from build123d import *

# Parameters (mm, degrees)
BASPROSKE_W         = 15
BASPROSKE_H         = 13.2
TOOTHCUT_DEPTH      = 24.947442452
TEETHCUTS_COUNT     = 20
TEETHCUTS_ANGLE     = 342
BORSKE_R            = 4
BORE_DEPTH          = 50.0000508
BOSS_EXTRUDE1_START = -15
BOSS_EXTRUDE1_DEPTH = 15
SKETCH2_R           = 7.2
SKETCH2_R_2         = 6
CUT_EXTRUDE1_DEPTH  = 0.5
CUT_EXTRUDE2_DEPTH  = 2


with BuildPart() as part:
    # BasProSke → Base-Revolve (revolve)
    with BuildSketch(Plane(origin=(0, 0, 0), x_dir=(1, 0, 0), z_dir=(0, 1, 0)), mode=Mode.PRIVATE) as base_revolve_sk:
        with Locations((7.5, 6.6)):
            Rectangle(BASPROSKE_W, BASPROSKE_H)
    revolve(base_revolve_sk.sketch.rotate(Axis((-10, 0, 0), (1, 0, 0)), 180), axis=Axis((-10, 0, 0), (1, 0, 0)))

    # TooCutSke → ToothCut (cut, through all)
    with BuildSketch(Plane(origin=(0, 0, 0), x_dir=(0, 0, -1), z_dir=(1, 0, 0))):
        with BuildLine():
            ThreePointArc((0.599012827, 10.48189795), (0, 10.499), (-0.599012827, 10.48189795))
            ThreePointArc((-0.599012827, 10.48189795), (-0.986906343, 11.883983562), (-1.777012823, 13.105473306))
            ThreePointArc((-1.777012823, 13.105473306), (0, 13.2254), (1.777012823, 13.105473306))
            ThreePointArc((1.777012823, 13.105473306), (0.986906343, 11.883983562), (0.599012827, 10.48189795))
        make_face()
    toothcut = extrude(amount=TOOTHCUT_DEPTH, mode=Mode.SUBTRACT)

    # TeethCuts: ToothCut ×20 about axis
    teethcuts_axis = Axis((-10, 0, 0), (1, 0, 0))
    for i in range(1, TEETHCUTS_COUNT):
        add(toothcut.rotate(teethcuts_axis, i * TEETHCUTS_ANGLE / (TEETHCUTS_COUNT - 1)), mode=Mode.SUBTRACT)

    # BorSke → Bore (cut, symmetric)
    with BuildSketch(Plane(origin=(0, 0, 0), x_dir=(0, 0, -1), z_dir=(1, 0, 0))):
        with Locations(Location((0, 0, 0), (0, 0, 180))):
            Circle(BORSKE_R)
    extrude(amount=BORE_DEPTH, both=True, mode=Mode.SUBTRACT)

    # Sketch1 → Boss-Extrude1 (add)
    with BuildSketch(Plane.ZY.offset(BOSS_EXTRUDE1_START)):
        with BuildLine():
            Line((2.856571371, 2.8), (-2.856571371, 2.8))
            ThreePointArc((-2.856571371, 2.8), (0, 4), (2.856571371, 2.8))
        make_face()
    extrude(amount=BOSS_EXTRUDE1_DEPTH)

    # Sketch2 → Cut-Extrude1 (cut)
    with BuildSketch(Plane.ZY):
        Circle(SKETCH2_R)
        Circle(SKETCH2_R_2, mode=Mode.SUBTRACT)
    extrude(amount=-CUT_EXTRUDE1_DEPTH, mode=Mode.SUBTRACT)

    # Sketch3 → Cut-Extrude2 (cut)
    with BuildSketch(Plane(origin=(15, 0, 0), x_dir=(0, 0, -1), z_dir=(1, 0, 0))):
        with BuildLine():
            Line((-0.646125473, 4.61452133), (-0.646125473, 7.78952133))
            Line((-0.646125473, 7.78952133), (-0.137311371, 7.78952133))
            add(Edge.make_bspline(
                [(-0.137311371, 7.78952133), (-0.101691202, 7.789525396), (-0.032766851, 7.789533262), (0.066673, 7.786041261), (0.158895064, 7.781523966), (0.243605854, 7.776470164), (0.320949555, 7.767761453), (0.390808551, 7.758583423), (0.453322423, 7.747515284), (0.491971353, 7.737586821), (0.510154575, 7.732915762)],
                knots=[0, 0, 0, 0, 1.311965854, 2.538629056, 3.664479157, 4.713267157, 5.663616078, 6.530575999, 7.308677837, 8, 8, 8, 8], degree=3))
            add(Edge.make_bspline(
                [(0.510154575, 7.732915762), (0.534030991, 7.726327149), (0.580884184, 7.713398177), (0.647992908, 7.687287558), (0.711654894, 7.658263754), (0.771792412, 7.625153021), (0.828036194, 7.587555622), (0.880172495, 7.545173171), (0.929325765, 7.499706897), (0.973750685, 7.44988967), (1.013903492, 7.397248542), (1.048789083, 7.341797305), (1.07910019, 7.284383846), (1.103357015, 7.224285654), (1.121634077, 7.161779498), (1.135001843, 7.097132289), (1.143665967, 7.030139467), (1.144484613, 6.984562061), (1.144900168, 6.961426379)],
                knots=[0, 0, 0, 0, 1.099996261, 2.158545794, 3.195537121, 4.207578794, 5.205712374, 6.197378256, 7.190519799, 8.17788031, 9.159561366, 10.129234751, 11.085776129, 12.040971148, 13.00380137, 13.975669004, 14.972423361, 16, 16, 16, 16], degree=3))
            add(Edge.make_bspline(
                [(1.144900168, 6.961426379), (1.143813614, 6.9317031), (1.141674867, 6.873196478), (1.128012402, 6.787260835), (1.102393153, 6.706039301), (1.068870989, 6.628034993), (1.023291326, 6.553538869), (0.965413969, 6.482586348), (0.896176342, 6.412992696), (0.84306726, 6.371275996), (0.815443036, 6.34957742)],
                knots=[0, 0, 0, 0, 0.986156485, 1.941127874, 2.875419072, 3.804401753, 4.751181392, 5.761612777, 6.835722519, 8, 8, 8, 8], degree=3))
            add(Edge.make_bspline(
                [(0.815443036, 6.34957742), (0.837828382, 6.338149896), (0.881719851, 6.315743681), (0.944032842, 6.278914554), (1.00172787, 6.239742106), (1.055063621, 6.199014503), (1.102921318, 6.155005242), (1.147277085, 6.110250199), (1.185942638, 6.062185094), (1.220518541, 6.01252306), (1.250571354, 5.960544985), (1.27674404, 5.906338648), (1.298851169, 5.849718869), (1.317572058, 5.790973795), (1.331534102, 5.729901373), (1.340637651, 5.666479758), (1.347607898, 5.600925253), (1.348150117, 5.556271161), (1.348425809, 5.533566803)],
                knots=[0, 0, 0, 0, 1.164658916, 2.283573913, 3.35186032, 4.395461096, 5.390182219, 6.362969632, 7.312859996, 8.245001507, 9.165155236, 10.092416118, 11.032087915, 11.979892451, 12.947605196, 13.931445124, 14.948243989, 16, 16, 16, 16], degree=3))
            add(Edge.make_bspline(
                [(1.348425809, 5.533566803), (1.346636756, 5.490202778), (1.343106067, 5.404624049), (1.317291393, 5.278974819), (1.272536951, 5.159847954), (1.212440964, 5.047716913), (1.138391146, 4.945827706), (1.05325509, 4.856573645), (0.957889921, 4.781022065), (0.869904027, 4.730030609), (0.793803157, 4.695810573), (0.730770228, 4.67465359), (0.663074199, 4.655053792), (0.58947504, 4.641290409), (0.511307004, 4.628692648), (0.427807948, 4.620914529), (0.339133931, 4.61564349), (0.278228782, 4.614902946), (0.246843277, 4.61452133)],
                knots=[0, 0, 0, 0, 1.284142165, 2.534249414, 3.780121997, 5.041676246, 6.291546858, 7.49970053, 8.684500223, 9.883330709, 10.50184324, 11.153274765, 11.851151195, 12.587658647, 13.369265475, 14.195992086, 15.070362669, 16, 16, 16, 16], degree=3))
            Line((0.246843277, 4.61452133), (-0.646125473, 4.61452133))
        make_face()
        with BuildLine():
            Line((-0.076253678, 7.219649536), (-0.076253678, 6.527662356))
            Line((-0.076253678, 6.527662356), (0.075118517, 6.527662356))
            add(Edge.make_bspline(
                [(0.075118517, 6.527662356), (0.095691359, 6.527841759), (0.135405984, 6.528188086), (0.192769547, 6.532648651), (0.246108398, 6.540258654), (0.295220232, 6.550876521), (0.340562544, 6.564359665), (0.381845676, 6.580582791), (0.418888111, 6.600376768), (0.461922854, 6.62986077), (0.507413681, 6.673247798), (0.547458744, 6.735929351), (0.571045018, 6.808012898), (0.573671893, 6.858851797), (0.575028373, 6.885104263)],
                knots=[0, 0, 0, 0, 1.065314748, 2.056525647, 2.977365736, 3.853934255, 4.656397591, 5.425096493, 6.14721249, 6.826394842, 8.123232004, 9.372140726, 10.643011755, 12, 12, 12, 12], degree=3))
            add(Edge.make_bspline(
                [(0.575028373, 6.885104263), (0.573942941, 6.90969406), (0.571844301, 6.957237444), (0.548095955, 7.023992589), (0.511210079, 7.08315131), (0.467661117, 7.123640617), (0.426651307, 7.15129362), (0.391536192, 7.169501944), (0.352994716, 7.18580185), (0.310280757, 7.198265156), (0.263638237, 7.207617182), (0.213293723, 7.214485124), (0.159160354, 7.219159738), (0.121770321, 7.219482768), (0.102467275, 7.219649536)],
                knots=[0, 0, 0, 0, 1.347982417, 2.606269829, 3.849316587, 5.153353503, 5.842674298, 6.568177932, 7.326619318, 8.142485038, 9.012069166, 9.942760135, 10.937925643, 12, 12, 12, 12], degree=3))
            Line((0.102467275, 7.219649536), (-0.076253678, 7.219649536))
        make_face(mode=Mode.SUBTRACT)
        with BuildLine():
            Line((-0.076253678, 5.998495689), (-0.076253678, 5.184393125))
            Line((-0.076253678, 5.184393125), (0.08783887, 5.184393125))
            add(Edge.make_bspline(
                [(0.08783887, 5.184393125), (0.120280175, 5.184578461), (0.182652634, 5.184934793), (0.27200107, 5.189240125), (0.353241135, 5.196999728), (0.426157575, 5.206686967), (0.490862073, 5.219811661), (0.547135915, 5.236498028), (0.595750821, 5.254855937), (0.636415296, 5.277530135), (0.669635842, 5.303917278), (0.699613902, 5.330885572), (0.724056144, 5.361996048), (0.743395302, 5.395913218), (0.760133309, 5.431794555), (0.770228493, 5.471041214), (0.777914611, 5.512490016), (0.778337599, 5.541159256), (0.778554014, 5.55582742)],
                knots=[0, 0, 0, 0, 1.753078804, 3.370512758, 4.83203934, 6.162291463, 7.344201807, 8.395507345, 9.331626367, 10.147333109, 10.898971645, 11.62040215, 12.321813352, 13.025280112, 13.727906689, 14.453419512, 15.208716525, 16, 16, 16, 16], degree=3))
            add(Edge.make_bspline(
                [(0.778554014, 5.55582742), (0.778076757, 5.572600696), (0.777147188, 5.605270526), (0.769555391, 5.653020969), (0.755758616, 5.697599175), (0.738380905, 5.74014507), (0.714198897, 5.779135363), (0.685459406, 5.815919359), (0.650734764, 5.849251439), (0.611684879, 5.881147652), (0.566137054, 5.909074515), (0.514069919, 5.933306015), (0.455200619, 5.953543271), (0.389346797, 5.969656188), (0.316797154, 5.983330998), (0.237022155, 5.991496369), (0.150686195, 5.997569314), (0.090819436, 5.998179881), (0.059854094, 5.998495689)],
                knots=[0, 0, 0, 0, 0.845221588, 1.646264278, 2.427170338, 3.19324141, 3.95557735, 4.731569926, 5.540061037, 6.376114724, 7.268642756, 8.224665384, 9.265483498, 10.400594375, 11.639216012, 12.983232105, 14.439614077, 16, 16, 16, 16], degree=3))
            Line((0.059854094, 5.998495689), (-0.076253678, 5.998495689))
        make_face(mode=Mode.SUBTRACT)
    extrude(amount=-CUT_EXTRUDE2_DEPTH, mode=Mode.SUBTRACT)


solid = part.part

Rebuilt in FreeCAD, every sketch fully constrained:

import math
import FreeCAD as App
import Part
import Sketcher
from FreeCAD import Vector

doc = App.newDocument("Part")
params = doc.addObject("Spreadsheet::Sheet", "Params")
for row, (alias, value) in enumerate([
    ("sketch1_width", "15 mm"),
    ("sketch1_height", "13.2 mm"),
    ("revolution_angle", "360 deg"),
    ("sketch2_radius", "4.8 mm"),
    ("sketch3_diameter", "8 mm"),
    ("pocket2_length", "100.000102 mm"),
    ("sketch4_radius", "4 mm"),
    ("pad1_length", "15 mm"),
    ("sketch5_diameter", "12 mm"),
    ("sketch5_diameter2", "14.4 mm"),
    ("pocket3_length", "0.5 mm"),
    ("pocket4_length", "2 mm"),
], start=1):
    params.set(f"A{row}", alias)
    params.set(f"B{row}", "=" + value)
    params.setAlias(f"B{row}", alias)

body = doc.addObject("PartDesign::Body", "Body")

sketch1 = doc.addObject("Sketcher::SketchObject", "Sketch")
body.addObject(sketch1)
sketch1.AttachmentSupport = (doc.XZ_Plane, [""])
sketch1.MapMode = "FlatFace"
sketch1.addGeometry([
    Part.LineSegment(Vector(0, -13, 0), Vector(0, 0, 0)),
    Part.LineSegment(Vector(0, 0, 0), Vector(15, 0, 0)),
    Part.LineSegment(Vector(15, 0, 0), Vector(15, -13, 0)),
    Part.LineSegment(Vector(15, -13, 0), Vector(0, -13, 0)),
], False)
sketch1.addConstraint([
    Sketcher.Constraint("Coincident", 0, 2, 1, 1),
    Sketcher.Constraint("Coincident", 1, 2, 2, 1),
    Sketcher.Constraint("Coincident", 2, 2, 3, 1),
    Sketcher.Constraint("Coincident", 3, 2, 0, 1),
    Sketcher.Constraint("Vertical", 0),
    Sketcher.Constraint("Horizontal", 1),
    Sketcher.Constraint("Vertical", 2),
    Sketcher.Constraint("Horizontal", 3),
    Sketcher.Constraint("Coincident", 0, 2, -1, 1),
    Sketcher.Constraint("DistanceX", 1, 1, 1, 2, 15.0),
    Sketcher.Constraint("DistanceY", 0, 1, 0, 2, 13.2),
])
sketch1.setExpression("Constraints[9]", "Params.sketch1_width")
sketch1.setExpression("Constraints[10]", "Params.sketch1_height")
revolution = doc.addObject("PartDesign::Revolution", "Revolution")
body.addObject(revolution)
revolution.Profile = sketch1
revolution.ReferenceAxis = (sketch1, ["H_Axis"])
revolution.setExpression("Angle", "Params.revolution_angle")

sketch2 = doc.addObject("Sketcher::SketchObject", "Sketch001")
body.addObject(sketch2)
sketch2.AttachmentSupport = (doc.YZ_Plane, [""])
sketch2.MapMode = "FlatFace"
sketch2.addGeometry([
    Part.ArcOfCircle(Part.Circle(Vector(0, 0, 0), Vector(0, 0, 1), 10.5), math.radians(-3.27), math.radians(3.27)),
    Part.ArcOfCircle(Part.Circle(Vector(9.9, -5.4, 0), Vector(0, 0, 1), 4.8), math.radians(48), math.radians(83)),
    Part.ArcOfCircle(Part.Circle(Vector(0, 0, 0), Vector(0, 0, 1), 13.2), math.radians(-7.72), math.radians(7.72)),
    Part.ArcOfCircle(Part.Circle(Vector(9.9, 5.4, 0), Vector(0, 0, 1), 4.8), math.radians(-83), math.radians(-48)),
], False)
sketch2.addConstraint([
    Sketcher.Constraint("Coincident", 0, 1, 1, 2),
    Sketcher.Constraint("Coincident", 1, 1, 2, 1),
    Sketcher.Constraint("Coincident", 2, 2, 3, 2),
    Sketcher.Constraint("Coincident", 3, 1, 0, 2),
    Sketcher.Constraint("Coincident", 0, 3, -1, 1),
    Sketcher.Constraint("Coincident", 2, 3, -1, 1),
    Sketcher.Constraint("Equal", 1, 3),
    Sketcher.Constraint("Symmetric", 1, 3, 3, 3, -1),
    Sketcher.Constraint("Radius", 1, 4.8),
    Sketcher.Constraint("Radius", 0, 10.499),
    Sketcher.Constraint("Radius", 2, 13.2254),
    Sketcher.Constraint("DistanceY", 1, 1, 0, 1, 1.178),
    Sketcher.Constraint("DistanceY", 0, 1, 3, 3, 5.96477),
])
sketch2.setExpression("Constraints[8]", "Params.sketch2_radius")
pocket1 = doc.addObject("PartDesign::Pocket", "Pocket")
body.addObject(pocket1)
pocket1.Profile = sketch2
pocket1.Type = "ThroughAll"
pocket1.Reversed = True
doc.recompute()

polarpattern = doc.addObject("PartDesign::PolarPattern", "PolarPattern")
body.addObject(polarpattern)
polarpattern.Originals = [pocket1]
polarpattern.Axis = (doc.X_Axis, [""])
polarpattern.Angle = 360
polarpattern.Occurrences = 20
body.Tip = polarpattern

sketch3 = doc.addObject("Sketcher::SketchObject", "Sketch002")
body.addObject(sketch3)
sketch3.AttachmentSupport = (doc.YZ_Plane, [""])
sketch3.MapMode = "FlatFace"
sketch3.addGeometry(Part.Circle(Vector(0, 0, 0), Vector(0, 0, 1), 4), False)
sketch3.addConstraint([
    Sketcher.Constraint("Coincident", 0, 3, -1, 1),
    Sketcher.Constraint("Diameter", 0, 8.0),
])
sketch3.setExpression("Constraints[1]", "Params.sketch3_diameter")
pocket2 = doc.addObject("PartDesign::Pocket", "Pocket001")
body.addObject(pocket2)
pocket2.Profile = sketch3
pocket2.setExpression("Length", "Params.pocket2_length")
pocket2.Midplane = True

sketch4 = doc.addObject("Sketcher::SketchObject", "Sketch003")
body.addObject(sketch4)
sketch4.AttachmentSupport = (doc.YZ_Plane, [""])
sketch4.MapMode = "FlatFace"
sketch4.AttachmentOffset = App.Placement(Vector(0, 0, 15), App.Rotation())
sketch4.addGeometry([
    Part.LineSegment(Vector(2.8, -2.9, 0), Vector(2.8, 2.9, 0)),
    Part.ArcOfCircle(Part.Circle(Vector(0, 0, 0), Vector(0, 0, 1), 4), math.radians(-46), math.radians(46)),
], False)
sketch4.addConstraint([
    Sketcher.Constraint("Coincident", 0, 1, 1, 1),
    Sketcher.Constraint("Coincident", 1, 2, 0, 2),
    Sketcher.Constraint("Vertical", 0),
    Sketcher.Constraint("Coincident", 1, 3, -1, 1),
    Sketcher.Constraint("Radius", 1, 4.0),
    Sketcher.Constraint("DistanceX", -1, 1, 0, 1, 2.8),
])
sketch4.setExpression("Constraints[4]", "Params.sketch4_radius")
pad1 = doc.addObject("PartDesign::Pad", "Pad")
body.addObject(pad1)
pad1.Profile = sketch4
pad1.setExpression("Length", "Params.pad1_length")
pad1.Reversed = True

sketch5 = doc.addObject("Sketcher::SketchObject", "Sketch004")
body.addObject(sketch5)
sketch5.AttachmentSupport = (doc.YZ_Plane, [""])
sketch5.MapMode = "FlatFace"
sketch5.addGeometry([
    Part.Circle(Vector(0, 0, 0), Vector(0, 0, 1), 7),
    Part.Circle(Vector(0, 0, 0), Vector(0, 0, 1), 6),
], False)
sketch5.addConstraint([
    Sketcher.Constraint("Coincident", 0, 3, -1, 1),
    Sketcher.Constraint("Coincident", 1, 3, -1, 1),
    Sketcher.Constraint("Diameter", 1, 12.0),
    Sketcher.Constraint("Diameter", 0, 14.4),
])
sketch5.setExpression("Constraints[2]", "Params.sketch5_diameter")
sketch5.setExpression("Constraints[3]", "Params.sketch5_diameter2")
pocket3 = doc.addObject("PartDesign::Pocket", "Pocket002")
body.addObject(pocket3)
pocket3.Profile = sketch5
pocket3.setExpression("Length", "Params.pocket3_length")
pocket3.Reversed = True

sketch6 = doc.addObject("Sketcher::SketchObject", "Sketch005")
body.addObject(sketch6)
sketch6.AttachmentSupport = (doc.YZ_Plane, [""])
sketch6.MapMode = "FlatFace"
sketch6.AttachmentOffset = App.Placement(Vector(0, 0, 15), App.Rotation())
sketch6.addGeometry([
    Part.LineSegment(Vector(7.789521, 0.646125, 0), Vector(4.614521, 0.646125, 0)),
    Part.LineSegment(Vector(4.614521, 0.646125, 0), Vector(4.614521, -0.246843, 0)),
    Part.BSplineCurve([Vector(5.533567, -1.348426, 0), Vector(5.490203, -1.346637, 0), Vector(5.404624, -1.343106, 0), Vector(5.278975, -1.317291, 0), Vector(5.159848, -1.272537, 0), Vector(5.047717, -1.212441, 0), Vector(4.945828, -1.138391, 0), Vector(4.856574, -1.053255, 0), Vector(4.781022, -0.95789, 0), Vector(4.730031, -0.869904, 0), Vector(4.695811, -0.793803, 0), Vector(4.674654, -0.73077, 0), Vector(4.655054, -0.663074, 0), Vector(4.64129, -0.589475, 0), Vector(4.628693, -0.511307, 0), Vector(4.620915, -0.427808, 0), Vector(4.615643, -0.339134, 0), Vector(4.614903, -0.278229, 0), Vector(4.614521, -0.246843, 0)], [4, 1, 1, 1, 1, 1, 1, 1, 1, 1, 1, 1, 1, 1, 1, 1, 4], [0, 1.284142165, 2.534249414, 3.780121997, 5.041676246, 6.291546858, 7.49970053, 8.684500223, 9.883330709, 10.50184324, 11.153274765, 11.851151195, 12.587658647, 13.369265475, 14.195992086, 15.070362669, 16], False, 3, [1, 1, 1, 1, 1, 1, 1, 1, 1, 1, 1, 1, 1, 1, 1, 1, 1, 1, 1], False),
    Part.BSplineCurve([Vector(6.349577, -0.815443, 0), Vector(6.33815, -0.837828, 0), Vector(6.315744, -0.88172, 0), Vector(6.278915, -0.944033, 0), Vector(6.239742, -1.001728, 0), Vector(6.199015, -1.055064, 0), Vector(6.155005, -1.102921, 0), Vector(6.11025, -1.147277, 0), Vector(6.062185, -1.185943, 0), Vector(6.012523, -1.220519, 0), Vector(5.960545, -1.250571, 0), Vector(5.906339, -1.276744, 0), Vector(5.849719, -1.298851, 0), Vector(5.790974, -1.317572, 0), Vector(5.729901, -1.331534, 0), Vector(5.66648, -1.340638, 0), Vector(5.600925, -1.347608, 0), Vector(5.556271, -1.34815, 0), Vector(5.533567, -1.348426, 0)], [4, 1, 1, 1, 1, 1, 1, 1, 1, 1, 1, 1, 1, 1, 1, 1, 4], [0, 1.164658916, 2.283573913, 3.35186032, 4.395461096, 5.390182219, 6.362969632, 7.312859996, 8.245001507, 9.165155236, 10.092416118, 11.032087915, 11.979892451, 12.947605196, 13.931445124, 14.948243989, 16], False, 3, [1, 1, 1, 1, 1, 1, 1, 1, 1, 1, 1, 1, 1, 1, 1, 1, 1, 1, 1], False),
    Part.BSplineCurve([Vector(6.961426, -1.1449, 0), Vector(6.931703, -1.143814, 0), Vector(6.873196, -1.141675, 0), Vector(6.787261, -1.128012, 0), Vector(6.706039, -1.102393, 0), Vector(6.628035, -1.068871, 0), Vector(6.553539, -1.023291, 0), Vector(6.482586, -0.965414, 0), Vector(6.412993, -0.896176, 0), Vector(6.371276, -0.843067, 0), Vector(6.349577, -0.815443, 0)], [4, 1, 1, 1, 1, 1, 1, 1, 4], [0, 0.986156485, 1.941127874, 2.875419072, 3.804401753, 4.751181392, 5.761612777, 6.835722519, 8], False, 3, [1, 1, 1, 1, 1, 1, 1, 1, 1, 1, 1], False),
    Part.BSplineCurve([Vector(7.732916, -0.510155, 0), Vector(7.726327, -0.534031, 0), Vector(7.713398, -0.580884, 0), Vector(7.687288, -0.647993, 0), Vector(7.658264, -0.711655, 0), Vector(7.625153, -0.771792, 0), Vector(7.587556, -0.828036, 0), Vector(7.545173, -0.880172, 0), Vector(7.499707, -0.929326, 0), Vector(7.44989, -0.973751, 0), Vector(7.397249, -1.013903, 0), Vector(7.341797, -1.048789, 0), Vector(7.284384, -1.0791, 0), Vector(7.224286, -1.103357, 0), Vector(7.161779, -1.121634, 0), Vector(7.097132, -1.135002, 0), Vector(7.030139, -1.143666, 0), Vector(6.984562, -1.144485, 0), Vector(6.961426, -1.1449, 0)], [4, 1, 1, 1, 1, 1, 1, 1, 1, 1, 1, 1, 1, 1, 1, 1, 4], [0, 1.099996261, 2.158545794, 3.195537121, 4.207578794, 5.205712374, 6.197378256, 7.190519799, 8.17788031, 9.159561366, 10.129234751, 11.085776129, 12.040971148, 13.00380137, 13.975669004, 14.972423361, 16], False, 3, [1, 1, 1, 1, 1, 1, 1, 1, 1, 1, 1, 1, 1, 1, 1, 1, 1, 1, 1], False),
    Part.BSplineCurve([Vector(7.789521, 0.137311, 0), Vector(7.789525, 0.101691, 0), Vector(7.789533, 0.032767, 0), Vector(7.786041, -0.066673, 0), Vector(7.781524, -0.158895, 0), Vector(7.77647, -0.243606, 0), Vector(7.767761, -0.32095, 0), Vector(7.758583, -0.390809, 0), Vector(7.747515, -0.453322, 0), Vector(7.737587, -0.491971, 0), Vector(7.732916, -0.510155, 0)], [4, 1, 1, 1, 1, 1, 1, 1, 4], [0, 1.311965854, 2.538629056, 3.664479157, 4.713267157, 5.663616078, 6.530575999, 7.308677837, 8], False, 3, [1, 1, 1, 1, 1, 1, 1, 1, 1, 1, 1], False),
    Part.LineSegment(Vector(7.789521, 0.137311, 0), Vector(7.789521, 0.646125, 0)),
    Part.LineSegment(Vector(5.998496, 0.076254, 0), Vector(5.998496, -0.059854, 0)),
    Part.BSplineCurve([Vector(5.555827, -0.778554, 0), Vector(5.572601, -0.778077, 0), Vector(5.605271, -0.777147, 0), Vector(5.653021, -0.769555, 0), Vector(5.697599, -0.755759, 0), Vector(5.740145, -0.738381, 0), Vector(5.779135, -0.714199, 0), Vector(5.815919, -0.685459, 0), Vector(5.849251, -0.650735, 0), Vector(5.881148, -0.611685, 0), Vector(5.909075, -0.566137, 0), Vector(5.933306, -0.51407, 0), Vector(5.953543, -0.455201, 0), Vector(5.969656, -0.389347, 0), Vector(5.983331, -0.316797, 0), Vector(5.991496, -0.237022, 0), Vector(5.997569, -0.150686, 0), Vector(5.99818, -0.090819, 0), Vector(5.998496, -0.059854, 0)], [4, 1, 1, 1, 1, 1, 1, 1, 1, 1, 1, 1, 1, 1, 1, 1, 4], [0, 0.845221588, 1.646264278, 2.427170338, 3.19324141, 3.95557735, 4.731569926, 5.540061037, 6.376114724, 7.268642756, 8.224665384, 9.265483498, 10.400594375, 11.639216012, 12.983232105, 14.439614077, 16], False, 3, [1, 1, 1, 1, 1, 1, 1, 1, 1, 1, 1, 1, 1, 1, 1, 1, 1, 1, 1], False),
    Part.BSplineCurve([Vector(5.184393, -0.087839, 0), Vector(5.184578, -0.12028, 0), Vector(5.184935, -0.182653, 0), Vector(5.18924, -0.272001, 0), Vector(5.197, -0.353241, 0), Vector(5.206687, -0.426158, 0), Vector(5.219812, -0.490862, 0), Vector(5.236498, -0.547136, 0), Vector(5.254856, -0.595751, 0), Vector(5.27753, -0.636415, 0), Vector(5.303917, -0.669636, 0), Vector(5.330886, -0.699614, 0), Vector(5.361996, -0.724056, 0), Vector(5.395913, -0.743395, 0), Vector(5.431795, -0.760133, 0), Vector(5.471041, -0.770228, 0), Vector(5.51249, -0.777915, 0), Vector(5.541159, -0.778338, 0), Vector(5.555827, -0.778554, 0)], [4, 1, 1, 1, 1, 1, 1, 1, 1, 1, 1, 1, 1, 1, 1, 1, 4], [0, 1.753078804, 3.370512758, 4.83203934, 6.162291463, 7.344201807, 8.395507345, 9.331626367, 10.147333109, 10.898971645, 11.62040215, 12.321813352, 13.025280112, 13.727906689, 14.453419512, 15.208716525, 16], False, 3, [1, 1, 1, 1, 1, 1, 1, 1, 1, 1, 1, 1, 1, 1, 1, 1, 1, 1, 1], False),
    Part.LineSegment(Vector(5.184393, -0.087839, 0), Vector(5.184393, 0.076254, 0)),
    Part.LineSegment(Vector(5.184393, 0.076254, 0), Vector(5.998496, 0.076254, 0)),
    Part.LineSegment(Vector(7.21965, 0.076254, 0), Vector(7.21965, -0.102467, 0)),
    Part.BSplineCurve([Vector(6.885104, -0.575028, 0), Vector(6.909694, -0.573943, 0), Vector(6.957237, -0.571844, 0), Vector(7.023993, -0.548096, 0), Vector(7.083151, -0.51121, 0), Vector(7.123641, -0.467661, 0), Vector(7.151294, -0.426651, 0), Vector(7.169502, -0.391536, 0), Vector(7.185802, -0.352995, 0), Vector(7.198265, -0.310281, 0), Vector(7.207617, -0.263638, 0), Vector(7.214485, -0.213294, 0), Vector(7.21916, -0.15916, 0), Vector(7.219483, -0.12177, 0), Vector(7.21965, -0.102467, 0)], [4, 1, 1, 1, 1, 1, 1, 1, 1, 1, 1, 1, 4], [0, 1.347982417, 2.606269829, 3.849316587, 5.153353503, 5.842674298, 6.568177932, 7.326619318, 8.142485038, 9.012069166, 9.942760135, 10.937925643, 12], False, 3, [1, 1, 1, 1, 1, 1, 1, 1, 1, 1, 1, 1, 1, 1, 1], False),
    Part.BSplineCurve([Vector(6.527662, -0.075119, 0), Vector(6.527842, -0.095691, 0), Vector(6.528188, -0.135406, 0), Vector(6.532649, -0.19277, 0), Vector(6.540259, -0.246108, 0), Vector(6.550877, -0.29522, 0), Vector(6.56436, -0.340563, 0), Vector(6.580583, -0.381846, 0), Vector(6.600377, -0.418888, 0), Vector(6.629861, -0.461923, 0), Vector(6.673248, -0.507414, 0), Vector(6.735929, -0.547459, 0), Vector(6.808013, -0.571045, 0), Vector(6.858852, -0.573672, 0), Vector(6.885104, -0.575028, 0)], [4, 1, 1, 1, 1, 1, 1, 1, 1, 1, 1, 1, 4], [0, 1.065314748, 2.056525647, 2.977365736, 3.853934255, 4.656397591, 5.425096493, 6.14721249, 6.826394842, 8.123232004, 9.372140726, 10.643011755, 12], False, 3, [1, 1, 1, 1, 1, 1, 1, 1, 1, 1, 1, 1, 1, 1, 1], False),
    Part.LineSegment(Vector(6.527662, -0.075119, 0), Vector(6.527662, 0.076254, 0)),
    Part.LineSegment(Vector(6.527662, 0.076254, 0), Vector(7.21965, 0.076254, 0)),
], False)
sketch6.addConstraint([
    Sketcher.Constraint("Block", 2),
    Sketcher.Constraint("Block", 3),
    Sketcher.Constraint("Block", 4),
    Sketcher.Constraint("Block", 5),
    Sketcher.Constraint("Block", 6),
    Sketcher.Constraint("Block", 9),
    Sketcher.Constraint("Block", 10),
    Sketcher.Constraint("Block", 14),
    Sketcher.Constraint("Block", 15),
    Sketcher.Constraint("Coincident", 0, 2, 1, 1),
    Sketcher.Constraint("Coincident", 1, 2, 2, 2),
    Sketcher.Constraint("Coincident", 6, 1, 7, 1),
    Sketcher.Constraint("Coincident", 7, 2, 0, 1),
    Sketcher.Constraint("Coincident", 8, 2, 9, 2),
    Sketcher.Constraint("Coincident", 10, 1, 11, 1),
    Sketcher.Constraint("Coincident", 11, 2, 12, 1),
    Sketcher.Constraint("Coincident", 12, 2, 8, 1),
    Sketcher.Constraint("Coincident", 13, 2, 14, 2),
    Sketcher.Constraint("Coincident", 15, 1, 16, 1),
    Sketcher.Constraint("Coincident", 16, 2, 17, 1),
    Sketcher.Constraint("Coincident", 17, 2, 13, 1),
    Sketcher.Constraint("Horizontal", 0),
    Sketcher.Constraint("Vertical", 1),
    Sketcher.Constraint("Vertical", 7),
    Sketcher.Constraint("Vertical", 8),
    Sketcher.Constraint("Vertical", 11),
    Sketcher.Constraint("Horizontal", 12),
    Sketcher.Constraint("Vertical", 13),
    Sketcher.Constraint("Vertical", 16),
    Sketcher.Constraint("Horizontal", 17),
    Sketcher.Constraint("Horizontal", 12, 2, 16, 2),
    Sketcher.Constraint("DistanceY", 1, 2, 1, 1, 0.892969),
    Sketcher.Constraint("DistanceY", 13, 2, 13, 1, 0.178721),
])
pocket4 = doc.addObject("PartDesign::Pocket", "Pocket003")
body.addObject(pocket4)
pocket4.Profile = sketch6
pocket4.setExpression("Length", "Params.pocket4_length")

doc.recompute()
